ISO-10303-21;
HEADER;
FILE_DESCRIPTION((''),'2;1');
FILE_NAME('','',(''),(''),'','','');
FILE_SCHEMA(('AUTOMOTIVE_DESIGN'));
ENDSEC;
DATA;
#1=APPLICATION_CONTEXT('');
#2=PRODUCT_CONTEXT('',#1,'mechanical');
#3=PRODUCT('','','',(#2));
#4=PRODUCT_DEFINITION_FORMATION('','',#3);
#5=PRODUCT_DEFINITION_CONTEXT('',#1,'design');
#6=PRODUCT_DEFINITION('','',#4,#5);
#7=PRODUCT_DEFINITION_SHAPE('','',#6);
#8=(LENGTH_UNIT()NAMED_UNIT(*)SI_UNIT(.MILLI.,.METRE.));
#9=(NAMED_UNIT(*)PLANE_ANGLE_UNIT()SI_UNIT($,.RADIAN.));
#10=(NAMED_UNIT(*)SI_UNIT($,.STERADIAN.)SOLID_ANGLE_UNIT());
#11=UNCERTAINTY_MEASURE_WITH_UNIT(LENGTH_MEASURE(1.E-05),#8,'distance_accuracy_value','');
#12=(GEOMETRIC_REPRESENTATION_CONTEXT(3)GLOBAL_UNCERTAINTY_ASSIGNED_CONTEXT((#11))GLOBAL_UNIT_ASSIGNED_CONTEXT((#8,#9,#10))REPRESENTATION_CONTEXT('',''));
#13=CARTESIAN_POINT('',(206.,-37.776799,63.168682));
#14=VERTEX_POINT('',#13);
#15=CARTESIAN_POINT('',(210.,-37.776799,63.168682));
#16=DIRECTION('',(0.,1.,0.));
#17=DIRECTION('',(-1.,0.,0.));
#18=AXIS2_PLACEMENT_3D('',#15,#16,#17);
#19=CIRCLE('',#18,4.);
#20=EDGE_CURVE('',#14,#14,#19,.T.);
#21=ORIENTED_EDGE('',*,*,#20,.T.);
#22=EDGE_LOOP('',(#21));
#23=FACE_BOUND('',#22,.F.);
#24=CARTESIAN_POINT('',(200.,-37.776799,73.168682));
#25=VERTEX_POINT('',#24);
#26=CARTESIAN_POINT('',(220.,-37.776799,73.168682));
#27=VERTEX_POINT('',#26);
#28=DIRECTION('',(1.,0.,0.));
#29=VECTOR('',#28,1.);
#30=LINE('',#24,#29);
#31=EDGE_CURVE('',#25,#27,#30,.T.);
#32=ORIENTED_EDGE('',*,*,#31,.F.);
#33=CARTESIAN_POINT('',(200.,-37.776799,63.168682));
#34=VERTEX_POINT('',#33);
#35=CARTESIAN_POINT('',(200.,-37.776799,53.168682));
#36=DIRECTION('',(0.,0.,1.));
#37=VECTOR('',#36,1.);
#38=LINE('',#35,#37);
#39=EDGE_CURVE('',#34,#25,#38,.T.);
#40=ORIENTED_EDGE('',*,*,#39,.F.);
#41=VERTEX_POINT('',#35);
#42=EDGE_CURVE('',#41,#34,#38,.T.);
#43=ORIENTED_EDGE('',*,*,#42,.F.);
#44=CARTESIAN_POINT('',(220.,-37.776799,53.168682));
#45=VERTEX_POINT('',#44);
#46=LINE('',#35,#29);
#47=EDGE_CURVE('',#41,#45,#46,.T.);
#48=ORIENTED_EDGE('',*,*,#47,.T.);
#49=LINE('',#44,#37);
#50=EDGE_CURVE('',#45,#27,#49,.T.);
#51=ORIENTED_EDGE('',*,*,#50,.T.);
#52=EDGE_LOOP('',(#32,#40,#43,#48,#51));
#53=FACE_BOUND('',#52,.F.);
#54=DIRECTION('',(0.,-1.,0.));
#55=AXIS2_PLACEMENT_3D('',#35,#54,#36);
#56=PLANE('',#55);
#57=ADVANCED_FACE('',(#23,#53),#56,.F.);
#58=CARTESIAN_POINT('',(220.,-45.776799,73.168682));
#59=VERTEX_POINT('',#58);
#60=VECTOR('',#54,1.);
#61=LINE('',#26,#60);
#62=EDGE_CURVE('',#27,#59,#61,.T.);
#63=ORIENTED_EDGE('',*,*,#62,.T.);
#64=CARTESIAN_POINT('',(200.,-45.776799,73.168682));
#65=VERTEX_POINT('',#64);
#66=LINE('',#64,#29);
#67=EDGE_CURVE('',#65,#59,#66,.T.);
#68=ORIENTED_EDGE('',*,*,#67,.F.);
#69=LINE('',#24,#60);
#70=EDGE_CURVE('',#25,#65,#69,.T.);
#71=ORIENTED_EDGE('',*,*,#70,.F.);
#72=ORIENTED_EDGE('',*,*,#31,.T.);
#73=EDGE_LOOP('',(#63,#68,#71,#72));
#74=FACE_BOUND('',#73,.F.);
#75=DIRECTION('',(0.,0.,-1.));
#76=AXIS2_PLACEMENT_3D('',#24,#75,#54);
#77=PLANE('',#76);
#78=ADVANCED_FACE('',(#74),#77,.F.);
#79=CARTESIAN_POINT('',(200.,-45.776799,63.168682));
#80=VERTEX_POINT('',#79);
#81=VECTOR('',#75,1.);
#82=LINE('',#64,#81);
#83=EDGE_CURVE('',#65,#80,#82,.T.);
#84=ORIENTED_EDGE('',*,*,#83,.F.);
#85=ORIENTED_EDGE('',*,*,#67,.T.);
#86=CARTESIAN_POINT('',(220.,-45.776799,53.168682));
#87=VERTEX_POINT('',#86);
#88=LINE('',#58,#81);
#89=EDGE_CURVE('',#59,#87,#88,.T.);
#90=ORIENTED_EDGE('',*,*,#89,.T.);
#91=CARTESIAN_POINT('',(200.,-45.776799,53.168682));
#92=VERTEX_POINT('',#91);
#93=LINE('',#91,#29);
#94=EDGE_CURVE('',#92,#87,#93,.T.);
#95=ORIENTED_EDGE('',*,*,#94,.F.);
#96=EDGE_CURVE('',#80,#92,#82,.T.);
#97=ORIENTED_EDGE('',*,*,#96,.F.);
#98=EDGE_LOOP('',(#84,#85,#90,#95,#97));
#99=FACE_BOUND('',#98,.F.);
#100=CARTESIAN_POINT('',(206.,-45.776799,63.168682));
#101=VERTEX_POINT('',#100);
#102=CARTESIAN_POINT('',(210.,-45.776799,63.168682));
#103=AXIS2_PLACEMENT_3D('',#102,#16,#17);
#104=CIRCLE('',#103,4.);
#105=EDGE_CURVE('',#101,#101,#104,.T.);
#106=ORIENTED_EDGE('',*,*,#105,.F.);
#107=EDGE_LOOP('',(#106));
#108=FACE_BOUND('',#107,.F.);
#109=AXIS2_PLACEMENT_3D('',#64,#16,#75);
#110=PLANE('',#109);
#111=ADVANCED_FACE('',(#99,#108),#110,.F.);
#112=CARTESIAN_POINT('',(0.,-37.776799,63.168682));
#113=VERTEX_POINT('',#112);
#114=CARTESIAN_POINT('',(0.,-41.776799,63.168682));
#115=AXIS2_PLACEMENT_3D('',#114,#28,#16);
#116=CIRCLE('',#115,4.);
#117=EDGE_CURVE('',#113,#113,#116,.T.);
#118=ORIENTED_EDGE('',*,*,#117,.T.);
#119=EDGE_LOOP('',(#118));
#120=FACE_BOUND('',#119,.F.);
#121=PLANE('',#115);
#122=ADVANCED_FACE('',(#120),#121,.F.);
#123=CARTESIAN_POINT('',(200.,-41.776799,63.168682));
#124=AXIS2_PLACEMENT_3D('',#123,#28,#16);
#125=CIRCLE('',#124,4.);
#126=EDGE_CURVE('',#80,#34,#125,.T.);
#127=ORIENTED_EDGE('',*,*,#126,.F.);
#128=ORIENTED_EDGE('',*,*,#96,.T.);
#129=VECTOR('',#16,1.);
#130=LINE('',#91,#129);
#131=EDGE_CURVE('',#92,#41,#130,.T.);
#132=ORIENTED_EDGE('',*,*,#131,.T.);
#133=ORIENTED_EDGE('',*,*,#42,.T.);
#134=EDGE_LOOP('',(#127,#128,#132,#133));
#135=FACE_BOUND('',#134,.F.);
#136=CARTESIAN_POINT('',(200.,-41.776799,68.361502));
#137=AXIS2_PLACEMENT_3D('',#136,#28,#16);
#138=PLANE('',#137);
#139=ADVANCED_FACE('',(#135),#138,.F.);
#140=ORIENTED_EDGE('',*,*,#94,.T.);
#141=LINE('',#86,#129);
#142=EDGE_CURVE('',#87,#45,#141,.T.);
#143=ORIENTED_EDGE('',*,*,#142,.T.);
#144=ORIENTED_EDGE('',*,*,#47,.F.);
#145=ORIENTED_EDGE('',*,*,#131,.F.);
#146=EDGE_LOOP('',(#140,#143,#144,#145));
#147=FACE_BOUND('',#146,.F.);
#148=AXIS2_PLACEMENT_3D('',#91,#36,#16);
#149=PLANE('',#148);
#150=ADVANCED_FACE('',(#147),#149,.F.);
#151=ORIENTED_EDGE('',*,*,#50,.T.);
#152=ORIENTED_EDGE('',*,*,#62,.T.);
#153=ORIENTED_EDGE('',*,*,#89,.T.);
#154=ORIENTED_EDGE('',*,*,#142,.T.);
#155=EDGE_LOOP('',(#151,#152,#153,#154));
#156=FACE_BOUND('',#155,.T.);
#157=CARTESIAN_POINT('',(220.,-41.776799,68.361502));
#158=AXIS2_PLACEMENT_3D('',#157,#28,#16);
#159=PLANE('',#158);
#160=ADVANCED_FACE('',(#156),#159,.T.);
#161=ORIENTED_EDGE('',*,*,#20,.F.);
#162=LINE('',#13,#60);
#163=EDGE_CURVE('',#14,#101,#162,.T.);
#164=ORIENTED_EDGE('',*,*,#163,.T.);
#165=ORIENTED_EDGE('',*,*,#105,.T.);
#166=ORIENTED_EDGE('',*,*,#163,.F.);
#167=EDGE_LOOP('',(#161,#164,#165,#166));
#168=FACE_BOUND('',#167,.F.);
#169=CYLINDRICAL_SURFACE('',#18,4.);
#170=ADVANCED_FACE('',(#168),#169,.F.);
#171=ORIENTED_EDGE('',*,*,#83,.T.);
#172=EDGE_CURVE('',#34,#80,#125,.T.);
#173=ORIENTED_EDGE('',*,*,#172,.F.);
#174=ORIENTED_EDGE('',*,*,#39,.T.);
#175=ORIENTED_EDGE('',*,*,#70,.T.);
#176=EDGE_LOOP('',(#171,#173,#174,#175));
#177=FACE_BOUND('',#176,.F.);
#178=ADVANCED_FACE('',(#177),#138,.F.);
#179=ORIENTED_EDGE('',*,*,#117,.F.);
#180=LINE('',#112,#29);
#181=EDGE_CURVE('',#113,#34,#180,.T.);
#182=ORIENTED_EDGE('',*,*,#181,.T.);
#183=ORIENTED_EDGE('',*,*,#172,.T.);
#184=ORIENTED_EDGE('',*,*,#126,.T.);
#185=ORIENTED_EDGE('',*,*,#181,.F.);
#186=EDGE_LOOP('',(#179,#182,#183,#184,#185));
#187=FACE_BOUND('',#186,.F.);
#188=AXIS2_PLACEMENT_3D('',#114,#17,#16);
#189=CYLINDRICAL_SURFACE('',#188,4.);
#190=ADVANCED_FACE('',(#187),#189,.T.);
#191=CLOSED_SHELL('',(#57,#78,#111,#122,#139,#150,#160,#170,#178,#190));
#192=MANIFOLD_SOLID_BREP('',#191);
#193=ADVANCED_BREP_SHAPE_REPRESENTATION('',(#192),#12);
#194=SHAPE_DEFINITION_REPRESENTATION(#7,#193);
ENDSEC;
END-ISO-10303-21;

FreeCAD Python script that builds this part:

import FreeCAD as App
import Part
import Sketcher

V = App.Vector

doc = App.newDocument("Part")
body = doc.addObject("PartDesign::Body", "Body")

sketch1 = doc.addObject("Sketcher::SketchObject", "Sketch")
body.addObject(sketch1)
sketch1.AttachmentSupport = (doc.YZ_Plane, [""])
sketch1.MapMode = "FlatFace"
sketch1.addGeometry(Part.Circle(V(-41.8, 63.2, 0), V(0, 0, 1), 4), False)
sketch1.addConstraint([
    Sketcher.Constraint("Diameter", 0, 8.0),
    Sketcher.Constraint("DistanceX", 0, 3, -1, 1, 41.776799),
    Sketcher.Constraint("DistanceY", -1, 1, 0, 3, 63.168682),
])
pad1 = doc.addObject("PartDesign::Pad", "Pad")
body.addObject(pad1)
pad1.Profile = sketch1
pad1.Length = 200

sketch2 = doc.addObject("Sketcher::SketchObject", "Sketch001")
body.addObject(sketch2)
sketch2.AttachmentSupport = (doc.YZ_Plane, [""])
sketch2.MapMode = "FlatFace"
sketch2.AttachmentOffset = App.Placement(V(0, 0, 200), App.Rotation())
sketch2.addGeometry([
    Part.LineSegment(V(-38, 73, 0), V(-46, 73, 0)),
    Part.LineSegment(V(-46, 73, 0), V(-46, 53, 0)),
    Part.LineSegment(V(-46, 53, 0), V(-38, 53, 0)),
    Part.LineSegment(V(-38, 53, 0), V(-38, 73, 0)),
], False)
sketch2.addConstraint([
    Sketcher.Constraint("Coincident", 0, 2, 1, 1),
    Sketcher.Constraint("Coincident", 1, 2, 2, 1),
    Sketcher.Constraint("Coincident", 2, 2, 3, 1),
    Sketcher.Constraint("Coincident", 3, 2, 0, 1),
    Sketcher.Constraint("Horizontal", 0),
    Sketcher.Constraint("Vertical", 1),
    Sketcher.Constraint("Horizontal", 2),
    Sketcher.Constraint("Vertical", 3),
    Sketcher.Constraint("DistanceX", 0, 2, 0, 1, 8.0),
    Sketcher.Constraint("DistanceY", 1, 2, 1, 1, 20.0),
    Sketcher.Constraint("DistanceX", 0, 2, -1, 1, 45.776799),
    Sketcher.Constraint("DistanceY", -1, 1, 1, 2, 53.168682),
])
pad2 = doc.addObject("PartDesign::Pad", "Pad001")
body.addObject(pad2)
pad2.Profile = sketch2
pad2.Length = 20

sketch3 = doc.addObject("Sketcher::SketchObject", "Sketch002")
body.addObject(sketch3)
sketch3.AttachmentSupport = (doc.XZ_Plane, [""])
sketch3.MapMode = "FlatFace"
sketch3.AttachmentOffset = App.Placement(V(0, 0, 37.776799), App.Rotation())
sketch3.addGeometry(Part.Circle(V(210, 63.2, 0), V(0, 0, 1), 4), False)
sketch3.addConstraint([
    Sketcher.Constraint("Diameter", 0, 8.0),
    Sketcher.Constraint("DistanceX", -1, 1, 0, 3, 210.0),
    Sketcher.Constraint("DistanceY", -1, 1, 0, 3, 63.168682),
])
pocket1 = doc.addObject("PartDesign::Pocket", "Pocket")
body.addObject(pocket1)
pocket1.Profile = sketch3
pocket1.Length = 25
pocket1.Reversed = True

doc.recompute()
